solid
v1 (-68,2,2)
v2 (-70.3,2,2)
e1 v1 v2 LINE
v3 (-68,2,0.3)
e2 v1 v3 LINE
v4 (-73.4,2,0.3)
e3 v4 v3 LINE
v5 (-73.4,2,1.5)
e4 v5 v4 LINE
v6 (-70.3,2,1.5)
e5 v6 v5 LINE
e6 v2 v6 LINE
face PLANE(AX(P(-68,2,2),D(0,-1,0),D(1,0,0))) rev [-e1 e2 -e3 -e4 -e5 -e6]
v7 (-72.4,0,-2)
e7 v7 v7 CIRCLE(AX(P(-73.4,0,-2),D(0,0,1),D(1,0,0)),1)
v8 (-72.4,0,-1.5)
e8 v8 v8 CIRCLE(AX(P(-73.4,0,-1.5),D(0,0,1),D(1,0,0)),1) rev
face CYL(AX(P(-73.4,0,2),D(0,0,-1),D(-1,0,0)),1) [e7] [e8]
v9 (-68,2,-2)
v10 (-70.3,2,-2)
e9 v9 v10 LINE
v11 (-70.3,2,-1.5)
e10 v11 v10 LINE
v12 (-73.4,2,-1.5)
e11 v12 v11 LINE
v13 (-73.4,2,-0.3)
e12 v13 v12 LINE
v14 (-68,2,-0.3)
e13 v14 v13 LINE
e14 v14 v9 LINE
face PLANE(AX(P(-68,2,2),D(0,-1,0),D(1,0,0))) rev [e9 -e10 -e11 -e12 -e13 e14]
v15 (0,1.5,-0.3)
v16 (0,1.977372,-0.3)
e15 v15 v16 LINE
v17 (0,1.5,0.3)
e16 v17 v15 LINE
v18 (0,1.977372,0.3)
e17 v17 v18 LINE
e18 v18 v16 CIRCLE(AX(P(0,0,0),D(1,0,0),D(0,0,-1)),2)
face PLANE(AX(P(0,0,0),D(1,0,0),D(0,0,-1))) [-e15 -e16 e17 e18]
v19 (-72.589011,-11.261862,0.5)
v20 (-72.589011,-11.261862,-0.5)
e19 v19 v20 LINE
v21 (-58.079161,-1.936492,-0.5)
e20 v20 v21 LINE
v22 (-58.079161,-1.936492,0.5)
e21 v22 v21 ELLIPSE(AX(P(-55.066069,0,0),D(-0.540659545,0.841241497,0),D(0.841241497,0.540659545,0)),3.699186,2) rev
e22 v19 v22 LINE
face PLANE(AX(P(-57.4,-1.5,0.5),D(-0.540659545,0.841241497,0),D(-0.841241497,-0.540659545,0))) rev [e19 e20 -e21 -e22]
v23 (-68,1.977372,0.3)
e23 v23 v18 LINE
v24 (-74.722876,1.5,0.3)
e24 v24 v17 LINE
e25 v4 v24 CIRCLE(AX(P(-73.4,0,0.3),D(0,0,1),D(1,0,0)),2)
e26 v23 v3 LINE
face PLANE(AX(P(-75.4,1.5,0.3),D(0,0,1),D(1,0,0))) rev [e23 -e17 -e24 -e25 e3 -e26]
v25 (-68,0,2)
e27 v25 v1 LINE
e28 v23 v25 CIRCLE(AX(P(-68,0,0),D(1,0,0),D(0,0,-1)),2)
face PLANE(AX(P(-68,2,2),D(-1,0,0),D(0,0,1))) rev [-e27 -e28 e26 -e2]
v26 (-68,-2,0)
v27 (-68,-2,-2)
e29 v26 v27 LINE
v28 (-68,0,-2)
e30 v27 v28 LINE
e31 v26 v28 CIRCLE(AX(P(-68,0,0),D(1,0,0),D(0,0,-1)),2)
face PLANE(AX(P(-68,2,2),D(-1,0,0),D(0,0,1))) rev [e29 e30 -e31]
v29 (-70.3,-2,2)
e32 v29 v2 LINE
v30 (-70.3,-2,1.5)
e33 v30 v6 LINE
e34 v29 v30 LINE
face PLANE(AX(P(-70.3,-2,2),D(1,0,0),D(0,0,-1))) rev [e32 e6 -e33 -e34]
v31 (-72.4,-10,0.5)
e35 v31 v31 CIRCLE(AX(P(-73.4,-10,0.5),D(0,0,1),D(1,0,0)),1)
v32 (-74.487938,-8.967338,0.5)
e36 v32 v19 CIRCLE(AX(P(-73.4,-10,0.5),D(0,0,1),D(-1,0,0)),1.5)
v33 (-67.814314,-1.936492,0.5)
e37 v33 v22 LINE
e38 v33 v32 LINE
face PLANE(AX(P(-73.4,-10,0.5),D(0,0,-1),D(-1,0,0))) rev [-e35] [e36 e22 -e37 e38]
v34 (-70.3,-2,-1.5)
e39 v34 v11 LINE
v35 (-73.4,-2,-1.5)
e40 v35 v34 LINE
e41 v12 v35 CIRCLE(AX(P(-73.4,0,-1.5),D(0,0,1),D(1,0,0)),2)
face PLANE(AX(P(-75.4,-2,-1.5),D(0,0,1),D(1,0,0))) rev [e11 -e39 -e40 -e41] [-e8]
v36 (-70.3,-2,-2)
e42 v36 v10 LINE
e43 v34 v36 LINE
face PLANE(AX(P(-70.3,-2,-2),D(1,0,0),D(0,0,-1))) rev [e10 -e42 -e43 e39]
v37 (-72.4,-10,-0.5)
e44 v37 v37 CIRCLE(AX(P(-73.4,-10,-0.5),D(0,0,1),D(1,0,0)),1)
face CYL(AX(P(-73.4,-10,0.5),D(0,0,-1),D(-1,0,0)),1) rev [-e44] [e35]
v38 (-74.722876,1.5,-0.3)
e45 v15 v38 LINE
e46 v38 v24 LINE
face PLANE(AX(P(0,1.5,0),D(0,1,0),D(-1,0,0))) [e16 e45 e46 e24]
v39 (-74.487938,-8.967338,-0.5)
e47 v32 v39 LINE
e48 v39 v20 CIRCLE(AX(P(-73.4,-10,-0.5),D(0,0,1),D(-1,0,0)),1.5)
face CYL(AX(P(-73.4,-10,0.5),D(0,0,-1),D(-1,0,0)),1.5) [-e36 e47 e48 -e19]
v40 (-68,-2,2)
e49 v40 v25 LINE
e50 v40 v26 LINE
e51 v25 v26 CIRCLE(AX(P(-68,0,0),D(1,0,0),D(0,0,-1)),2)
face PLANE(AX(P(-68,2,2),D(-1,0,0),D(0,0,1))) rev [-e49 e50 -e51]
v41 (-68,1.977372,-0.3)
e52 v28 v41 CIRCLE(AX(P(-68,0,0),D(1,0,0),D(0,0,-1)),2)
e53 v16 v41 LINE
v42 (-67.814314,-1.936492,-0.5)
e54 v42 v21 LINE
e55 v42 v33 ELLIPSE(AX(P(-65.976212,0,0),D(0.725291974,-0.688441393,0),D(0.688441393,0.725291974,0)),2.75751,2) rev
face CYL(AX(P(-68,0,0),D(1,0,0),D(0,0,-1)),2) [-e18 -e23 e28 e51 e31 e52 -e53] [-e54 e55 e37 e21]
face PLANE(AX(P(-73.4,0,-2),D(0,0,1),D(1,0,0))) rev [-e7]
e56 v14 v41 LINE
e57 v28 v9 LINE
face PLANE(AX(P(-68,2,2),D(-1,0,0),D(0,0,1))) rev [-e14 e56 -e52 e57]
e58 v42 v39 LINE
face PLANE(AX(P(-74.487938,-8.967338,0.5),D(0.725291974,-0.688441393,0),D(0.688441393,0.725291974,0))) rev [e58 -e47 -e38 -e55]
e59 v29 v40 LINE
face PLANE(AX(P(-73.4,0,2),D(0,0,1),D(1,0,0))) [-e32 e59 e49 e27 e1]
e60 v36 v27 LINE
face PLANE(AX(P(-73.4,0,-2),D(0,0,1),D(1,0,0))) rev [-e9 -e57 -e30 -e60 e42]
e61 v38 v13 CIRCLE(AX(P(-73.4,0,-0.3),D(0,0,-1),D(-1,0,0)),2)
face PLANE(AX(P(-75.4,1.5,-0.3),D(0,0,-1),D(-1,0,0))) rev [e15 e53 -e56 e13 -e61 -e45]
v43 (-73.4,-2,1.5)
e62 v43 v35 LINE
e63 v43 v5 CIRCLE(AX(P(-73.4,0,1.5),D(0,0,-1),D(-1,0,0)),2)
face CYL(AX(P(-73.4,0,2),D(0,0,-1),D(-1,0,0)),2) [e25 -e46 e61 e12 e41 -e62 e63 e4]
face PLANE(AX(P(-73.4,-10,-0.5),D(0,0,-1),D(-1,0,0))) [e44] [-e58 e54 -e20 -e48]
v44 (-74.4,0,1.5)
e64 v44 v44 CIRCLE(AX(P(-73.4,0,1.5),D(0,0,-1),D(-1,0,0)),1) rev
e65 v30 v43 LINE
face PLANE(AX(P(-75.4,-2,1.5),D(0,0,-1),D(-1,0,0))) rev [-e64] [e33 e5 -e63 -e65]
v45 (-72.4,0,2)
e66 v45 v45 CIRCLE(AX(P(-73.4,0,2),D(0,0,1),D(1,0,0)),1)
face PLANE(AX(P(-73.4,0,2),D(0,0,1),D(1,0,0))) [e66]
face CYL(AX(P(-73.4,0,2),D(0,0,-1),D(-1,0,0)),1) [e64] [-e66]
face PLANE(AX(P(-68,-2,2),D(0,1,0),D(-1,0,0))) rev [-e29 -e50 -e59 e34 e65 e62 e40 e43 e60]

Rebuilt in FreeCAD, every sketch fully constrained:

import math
import FreeCAD as App
import Part
import Sketcher

V = App.Vector


def add_polygon(sketch, points):
    """Adds a closed chain of lines whose ends are joined by coincident constraints."""
    first, n = sketch.GeometryCount, len(points)
    for a, b in zip(points, points[1:] + points[:1]):
        sketch.addGeometry(Part.LineSegment(App.Vector(*a, 0), App.Vector(*b, 0)), False)
    for i in range(n):
        sketch.addConstraint(Sketcher.Constraint("Coincident", first + i, 2, first + (i + 1) % n, 1))

doc = App.newDocument("Part")
body = doc.addObject("PartDesign::Body", "Body")

# Sketch on YZ plane
sketch1 = body.newObject("Sketcher::SketchObject", "Sketch")
sketch1.AttachmentSupport = (doc.getObject("YZ_Plane"), [""])
sketch1.MapMode = "FlatFace"
sketch1.addGeometry(Part.Circle(V(0, 0, 0), V(0, 0, 1), 2), False)
sketch1.addConstraint([
    Sketcher.Constraint("Coincident", 0, 3, -1, 1),
    Sketcher.Constraint("Diameter", 0, 4.0),
])
pad1 = body.newObject("PartDesign::Pad", "Pad")
pad1.Profile = sketch1
pad1.Length = 68
pad1.Reversed = True

# Sketch on XY plane
sketch2 = body.newObject("Sketcher::SketchObject", "Sketch001")
sketch2.AttachmentSupport = (doc.getObject("XY_Plane"), [""])
sketch2.MapMode = "FlatFace"
sketch2.addGeometry([
    Part.LineSegment(V(-68, 2, 0), V(-73.4, 2, 0)),
    Part.ArcOfCircle(Part.Circle(V(-73.4, 0, 0), V(0, 0, 1), 2), math.radians(90), math.radians(270)),
    Part.LineSegment(V(-73.4, -2, 0), V(-68, -2, 0)),
    Part.LineSegment(V(-68, -2, 0), V(-68, 2, 0)),
], False)
sketch2.addConstraint([
    Sketcher.Constraint("Tangent", 0, 2, 1, 1),
    Sketcher.Constraint("Tangent", 1, 2, 2, 1),
    Sketcher.Constraint("Coincident", 2, 2, 3, 1),
    Sketcher.Constraint("Coincident", 3, 2, 0, 1),
    Sketcher.Constraint("Horizontal", 0),
    Sketcher.Constraint("Horizontal", 2),
    Sketcher.Constraint("Vertical", 3),
    Sketcher.Constraint("PointOnObject", 1, 3, -1),
    Sketcher.Constraint("Radius", 1, 2.0),
    Sketcher.Constraint("DistanceX", 0, 2, 0, 1, 5.4),
    Sketcher.Constraint("DistanceX", 2, 2, -1, 1, 68.0),
])
pad2 = body.newObject("PartDesign::Pad", "Pad001")
pad2.Profile = sketch2
pad2.Length = 4
pad2.Midplane = True

# Sketch on XZ plane
sketch3 = body.newObject("Sketcher::SketchObject", "Sketch002")
sketch3.AttachmentSupport = (doc.getObject("XZ_Plane"), [""])
sketch3.MapMode = "FlatFace"
add_polygon(sketch3, [(-75.4, -2), (-75.4, -1.5), (-70.3, -1.5), (-70.3, -2)])  # lines 0-3
add_polygon(sketch3, [(-75.4, 1.5), (-75.4, 2), (-70.3, 2), (-70.3, 1.5)])  # lines 4-7
sketch3.addConstraint([
    Sketcher.Constraint("Vertical", 0),
    Sketcher.Constraint("Horizontal", 1),
    Sketcher.Constraint("Vertical", 2),
    Sketcher.Constraint("Horizontal", 3),
    Sketcher.Constraint("Vertical", 4),
    Sketcher.Constraint("Horizontal", 5),
    Sketcher.Constraint("Vertical", 6),
    Sketcher.Constraint("Horizontal", 7),
    Sketcher.Constraint("Symmetric", 3, 2, 4, 2, -1),
    Sketcher.Constraint("Symmetric", 1, 2, 6, 2, -1),
    Sketcher.Constraint("DistanceX", 1, 1, 1, 2, 5.1),
    Sketcher.Constraint("DistanceY", 0, 1, 0, 2, 0.5),
    Sketcher.Constraint("DistanceY", 2, 2, -1, 1, 2.0),
    Sketcher.Constraint("DistanceX", 0, 2, -1, 1, 75.4),
])
pocket1 = body.newObject("PartDesign::Pocket", "Pocket")
pocket1.Profile = sketch3
pocket1.Type = "ThroughAll"
pocket1.Midplane = True

# Sketch on XY plane
sketch4 = body.newObject("Sketcher::SketchObject", "Sketch003")
sketch4.AttachmentSupport = (doc.getObject("XY_Plane"), [""])
sketch4.MapMode = "FlatFace"
sketch4.addGeometry(Part.Circle(V(-73.4, 0, 0), V(0, 0, 1), 1), False)
sketch4.addConstraint([
    Sketcher.Constraint("PointOnObject", 0, 3, -1),
    Sketcher.Constraint("Diameter", 0, 2.0),
    Sketcher.Constraint("DistanceX", 0, 3, -1, 1, 73.4),
])
pad3 = body.newObject("PartDesign::Pad", "Pad002")
pad3.Profile = sketch4
pad3.Length = 4
pad3.Midplane = True

# Sketch on XZ plane
sketch5 = body.newObject("Sketcher::SketchObject", "Sketch004")
sketch5.AttachmentSupport = (doc.getObject("XZ_Plane"), [""])
sketch5.MapMode = "FlatFace"
sketch5.AttachmentOffset = App.Placement(V(0, 0, -2), App.Rotation())
add_polygon(sketch5, [(-75.4, -0.3), (-75.4, 0.3), (0, 0.3), (0, -0.3)])  # lines 0-3
sketch5.addConstraint([
    Sketcher.Constraint("Vertical", 0),
    Sketcher.Constraint("Horizontal", 1),
    Sketcher.Constraint("Vertical", 2),
    Sketcher.Constraint("Horizontal", 3),
    Sketcher.Constraint("Symmetric", 1, 2, 2, 2, -1, 1),
    Sketcher.Constraint("DistanceX", 1, 1, 1, 2, 75.4),
    Sketcher.Constraint("DistanceY", 0, 1, 0, 2, 0.6),
])
pocket2 = body.newObject("PartDesign::Pocket", "Pocket001")
pocket2.Profile = sketch5
pocket2.Length = 0.5
pocket2.Reversed = True

# Sketch on XY plane
sketch6 = body.newObject("Sketcher::SketchObject", "Sketch005")
sketch6.AttachmentSupport = (doc.getObject("XY_Plane"), [""])
sketch6.MapMode = "FlatFace"
sketch6.addGeometry([
    Part.LineSegment(V(-57.4, -1.5, 0), V(-67.4, -1.5, 0)),  # 0
    Part.LineSegment(V(-67.4, -1.5, 0), V(-74.487938, -8.967338, 0)),  # 1
    Part.ArcOfCircle(Part.Circle(V(-73.4, -10, 0), V(0, 0, 1), 1.5), math.radians(136.493142), math.radians(302.728548)),  # 2
    Part.LineSegment(V(-72.589011, -11.261862, 0), V(-57.4, -1.5, 0)),  # 3
    Part.Circle(V(-73.4, -10, 0), V(0, 0, 1), 1),  # 4
], False)
sketch6.addConstraint([
    Sketcher.Constraint("Coincident", 0, 2, 1, 1),
    Sketcher.Constraint("Tangent", 1, 2, 2, 1),
    Sketcher.Constraint("Tangent", 2, 2, 3, 1),
    Sketcher.Constraint("Coincident", 3, 2, 0, 1),
    Sketcher.Constraint("Horizontal", 0),
    Sketcher.Constraint("Coincident", 4, 3, 2, 3),
    Sketcher.Constraint("Diameter", 4, 2.0),
    Sketcher.Constraint("Radius", 2, 1.5),
    Sketcher.Constraint("DistanceX", 0, 2, 0, 1, 10.0),
    Sketcher.Constraint("DistanceY", 2, 3, -1, 1, 10.0),
    Sketcher.Constraint("DistanceX", 4, 3, 0, 2, 6.0),
    Sketcher.Constraint("DistanceX", 2, 3, -1, 1, 73.4),
    Sketcher.Constraint("DistanceY", 0, 2, -1, 1, 1.5),
])
pad4 = body.newObject("PartDesign::Pad", "Pad003")
pad4.Profile = sketch6
pad4.Length = 1
pad4.Midplane = True

doc.recompute()
